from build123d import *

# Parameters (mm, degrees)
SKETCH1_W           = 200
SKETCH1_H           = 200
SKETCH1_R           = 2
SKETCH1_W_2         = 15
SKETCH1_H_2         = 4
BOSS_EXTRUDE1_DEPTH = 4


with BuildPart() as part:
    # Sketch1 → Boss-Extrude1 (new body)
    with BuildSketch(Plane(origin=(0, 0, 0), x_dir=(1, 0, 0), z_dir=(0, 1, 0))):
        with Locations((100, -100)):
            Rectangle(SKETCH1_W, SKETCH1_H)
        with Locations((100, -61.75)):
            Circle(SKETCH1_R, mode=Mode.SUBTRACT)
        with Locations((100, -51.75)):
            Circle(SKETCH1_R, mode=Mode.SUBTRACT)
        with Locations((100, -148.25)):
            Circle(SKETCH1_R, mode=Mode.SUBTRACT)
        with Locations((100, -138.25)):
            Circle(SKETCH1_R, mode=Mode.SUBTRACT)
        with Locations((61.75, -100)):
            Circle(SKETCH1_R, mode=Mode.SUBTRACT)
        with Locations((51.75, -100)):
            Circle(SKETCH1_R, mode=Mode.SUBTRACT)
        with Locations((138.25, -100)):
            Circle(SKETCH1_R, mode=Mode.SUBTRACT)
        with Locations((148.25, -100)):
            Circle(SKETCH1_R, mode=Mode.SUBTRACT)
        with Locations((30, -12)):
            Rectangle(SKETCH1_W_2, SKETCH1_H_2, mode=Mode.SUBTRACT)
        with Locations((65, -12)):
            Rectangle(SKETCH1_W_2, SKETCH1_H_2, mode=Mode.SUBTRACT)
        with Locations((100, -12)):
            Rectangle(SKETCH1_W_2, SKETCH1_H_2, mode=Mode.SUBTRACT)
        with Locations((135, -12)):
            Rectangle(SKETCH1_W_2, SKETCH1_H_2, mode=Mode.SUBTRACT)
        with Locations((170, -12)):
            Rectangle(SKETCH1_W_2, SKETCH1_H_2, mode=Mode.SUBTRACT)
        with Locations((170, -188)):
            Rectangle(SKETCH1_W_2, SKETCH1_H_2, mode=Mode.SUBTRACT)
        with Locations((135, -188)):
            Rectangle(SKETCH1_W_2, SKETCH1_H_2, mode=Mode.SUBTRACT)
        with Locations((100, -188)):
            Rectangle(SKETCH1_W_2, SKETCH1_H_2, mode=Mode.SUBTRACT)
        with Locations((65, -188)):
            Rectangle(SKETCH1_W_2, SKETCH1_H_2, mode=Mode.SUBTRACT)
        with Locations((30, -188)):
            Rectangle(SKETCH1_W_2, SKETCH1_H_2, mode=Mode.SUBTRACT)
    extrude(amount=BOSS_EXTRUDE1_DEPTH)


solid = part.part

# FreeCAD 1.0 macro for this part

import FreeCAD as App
import Part
import Sketcher

doc = App.newDocument("Part")
body = doc.addObject("PartDesign::Body", "Body")

sketch1 = doc.addObject("Sketcher::SketchObject", "Sketch")
body.addObject(sketch1)
sketch1.AttachmentSupport = (doc.XZ_Plane, [""])
sketch1.MapMode = "FlatFace"
sketch1.addGeometry(Part.LineSegment(App.Vector(0, 0, 0), App.Vector(0, 200, 0)), False)
sketch1.addGeometry(Part.LineSegment(App.Vector(0, 200, 0), App.Vector(200, 200, 0)), False)
sketch1.addGeometry(Part.LineSegment(App.Vector(200, 200, 0), App.Vector(200, 0, 0)), False)
sketch1.addGeometry(Part.LineSegment(App.Vector(200, 0, 0), App.Vector(0, 0, 0)), False)
sketch1.addGeometry(Part.LineSegment(App.Vector(37.5, 190, 0), App.Vector(22.5, 190, 0)), False)
sketch1.addGeometry(Part.LineSegment(App.Vector(22.5, 190, 0), App.Vector(22.5, 186, 0)), False)
sketch1.addGeometry(Part.LineSegment(App.Vector(22.5, 186, 0), App.Vector(37.5, 186, 0)), False)
sketch1.addGeometry(Part.LineSegment(App.Vector(37.5, 186, 0), App.Vector(37.5, 190, 0)), False)
sketch1.addGeometry(Part.LineSegment(App.Vector(72.5, 190, 0), App.Vector(57.5, 190, 0)), False)
sketch1.addGeometry(Part.LineSegment(App.Vector(57.5, 190, 0), App.Vector(57.5, 186, 0)), False)
sketch1.addGeometry(Part.LineSegment(App.Vector(57.5, 186, 0), App.Vector(72.5, 186, 0)), False)
sketch1.addGeometry(Part.LineSegment(App.Vector(72.5, 186, 0), App.Vector(72.5, 190, 0)), False)
sketch1.addGeometry(Part.LineSegment(App.Vector(107.5, 190, 0), App.Vector(92.5, 190, 0)), False)
sketch1.addGeometry(Part.LineSegment(App.Vector(92.5, 190, 0), App.Vector(92.5, 186, 0)), False)
sketch1.addGeometry(Part.LineSegment(App.Vector(92.5, 186, 0), App.Vector(107.5, 186, 0)), False)
sketch1.addGeometry(Part.LineSegment(App.Vector(107.5, 186, 0), App.Vector(107.5, 190, 0)), False)
sketch1.addGeometry(Part.LineSegment(App.Vector(142.5, 190, 0), App.Vector(127.5, 190, 0)), False)
sketch1.addGeometry(Part.LineSegment(App.Vector(127.5, 190, 0), App.Vector(127.5, 186, 0)), False)
sketch1.addGeometry(Part.LineSegment(App.Vector(127.5, 186, 0), App.Vector(142.5, 186, 0)), False)
sketch1.addGeometry(Part.LineSegment(App.Vector(142.5, 186, 0), App.Vector(142.5, 190, 0)), False)
sketch1.addGeometry(Part.Circle(App.Vector(100, 148.2, 0), App.Vector(0, 0, 1), 2), False)
sketch1.addGeometry(Part.LineSegment(App.Vector(177.5, 190, 0), App.Vector(162.5, 190, 0)), False)
sketch1.addGeometry(Part.LineSegment(App.Vector(162.5, 190, 0), App.Vector(162.5, 186, 0)), False)
sketch1.addGeometry(Part.LineSegment(App.Vector(162.5, 186, 0), App.Vector(177.5, 186, 0)), False)
sketch1.addGeometry(Part.LineSegment(App.Vector(177.5, 186, 0), App.Vector(177.5, 190, 0)), False)
sketch1.addGeometry(Part.Circle(App.Vector(100, 138.2, 0), App.Vector(0, 0, 1), 2), False)
sketch1.addGeometry(Part.Circle(App.Vector(51.8, 100, 0), App.Vector(0, 0, 1), 2), False)
sketch1.addGeometry(Part.Circle(App.Vector(61.8, 100, 0), App.Vector(0, 0, 1), 2), False)
sketch1.addGeometry(Part.LineSegment(App.Vector(37.5, 14, 0), App.Vector(22.5, 14, 0)), False)
sketch1.addGeometry(Part.LineSegment(App.Vector(22.5, 14, 0), App.Vector(22.5, 10, 0)), False)
sketch1.addGeometry(Part.LineSegment(App.Vector(22.5, 10, 0), App.Vector(37.5, 10, 0)), False)
sketch1.addGeometry(Part.LineSegment(App.Vector(37.5, 10, 0), App.Vector(37.5, 14, 0)), False)
sketch1.addGeometry(Part.LineSegment(App.Vector(72.5, 14, 0), App.Vector(57.5, 14, 0)), False)
sketch1.addGeometry(Part.LineSegment(App.Vector(57.5, 14, 0), App.Vector(57.5, 10, 0)), False)
sketch1.addGeometry(Part.LineSegment(App.Vector(57.5, 10, 0), App.Vector(72.5, 10, 0)), False)
sketch1.addGeometry(Part.LineSegment(App.Vector(72.5, 10, 0), App.Vector(72.5, 14, 0)), False)
sketch1.addGeometry(Part.Circle(App.Vector(138.2, 100, 0), App.Vector(0, 0, 1), 2), False)
sketch1.addGeometry(Part.Circle(App.Vector(100, 61.8, 0), App.Vector(0, 0, 1), 2), False)
sketch1.addGeometry(Part.Circle(App.Vector(148.2, 100, 0), App.Vector(0, 0, 1), 2), False)
sketch1.addGeometry(Part.Circle(App.Vector(100, 51.8, 0), App.Vector(0, 0, 1), 2), False)
sketch1.addGeometry(Part.LineSegment(App.Vector(107.5, 14, 0), App.Vector(92.5, 14, 0)), False)
sketch1.addGeometry(Part.LineSegment(App.Vector(92.5, 14, 0), App.Vector(92.5, 10, 0)), False)
sketch1.addGeometry(Part.LineSegment(App.Vector(92.5, 10, 0), App.Vector(107.5, 10, 0)), False)
sketch1.addGeometry(Part.LineSegment(App.Vector(107.5, 10, 0), App.Vector(107.5, 14, 0)), False)
sketch1.addGeometry(Part.LineSegment(App.Vector(142.5, 14, 0), App.Vector(127.5, 14, 0)), False)
sketch1.addGeometry(Part.LineSegment(App.Vector(127.5, 14, 0), App.Vector(127.5, 10, 0)), False)
sketch1.addGeometry(Part.LineSegment(App.Vector(127.5, 10, 0), App.Vector(142.5, 10, 0)), False)
sketch1.addGeometry(Part.LineSegment(App.Vector(142.5, 10, 0), App.Vector(142.5, 14, 0)), False)
sketch1.addGeometry(Part.LineSegment(App.Vector(177.5, 14, 0), App.Vector(162.5, 14, 0)), False)
sketch1.addGeometry(Part.LineSegment(App.Vector(162.5, 14, 0), App.Vector(162.5, 10, 0)), False)
sketch1.addGeometry(Part.LineSegment(App.Vector(162.5, 10, 0), App.Vector(177.5, 10, 0)), False)
sketch1.addGeometry(Part.LineSegment(App.Vector(177.5, 10, 0), App.Vector(177.5, 14, 0)), False)
sketch1.addConstraint(Sketcher.Constraint("Coincident", 0, 2, 1, 1))
sketch1.addConstraint(Sketcher.Constraint("Coincident", 1, 2, 2, 1))
sketch1.addConstraint(Sketcher.Constraint("Coincident", 2, 2, 3, 1))
sketch1.addConstraint(Sketcher.Constraint("Coincident", 3, 2, 0, 1))
sketch1.addConstraint(Sketcher.Constraint("Coincident", 4, 2, 5, 1))
sketch1.addConstraint(Sketcher.Constraint("Coincident", 5, 2, 6, 1))
sketch1.addConstraint(Sketcher.Constraint("Coincident", 6, 2, 7, 1))
sketch1.addConstraint(Sketcher.Constraint("Coincident", 7, 2, 4, 1))
sketch1.addConstraint(Sketcher.Constraint("Coincident", 8, 2, 9, 1))
sketch1.addConstraint(Sketcher.Constraint("Coincident", 9, 2, 10, 1))
sketch1.addConstraint(Sketcher.Constraint("Coincident", 10, 2, 11, 1))
sketch1.addConstraint(Sketcher.Constraint("Coincident", 11, 2, 8, 1))
sketch1.addConstraint(Sketcher.Constraint("Coincident", 12, 2, 13, 1))
sketch1.addConstraint(Sketcher.Constraint("Coincident", 13, 2, 14, 1))
sketch1.addConstraint(Sketcher.Constraint("Coincident", 14, 2, 15, 1))
sketch1.addConstraint(Sketcher.Constraint("Coincident", 15, 2, 12, 1))
sketch1.addConstraint(Sketcher.Constraint("Coincident", 16, 2, 17, 1))
sketch1.addConstraint(Sketcher.Constraint("Coincident", 17, 2, 18, 1))
sketch1.addConstraint(Sketcher.Constraint("Coincident", 18, 2, 19, 1))
sketch1.addConstraint(Sketcher.Constraint("Coincident", 19, 2, 16, 1))
sketch1.addConstraint(Sketcher.Constraint("Coincident", 21, 2, 22, 1))
sketch1.addConstraint(Sketcher.Constraint("Coincident", 22, 2, 23, 1))
sketch1.addConstraint(Sketcher.Constraint("Coincident", 23, 2, 24, 1))
sketch1.addConstraint(Sketcher.Constraint("Coincident", 24, 2, 21, 1))
sketch1.addConstraint(Sketcher.Constraint("Coincident", 28, 2, 29, 1))
sketch1.addConstraint(Sketcher.Constraint("Coincident", 29, 2, 30, 1))
sketch1.addConstraint(Sketcher.Constraint("Coincident", 30, 2, 31, 1))
sketch1.addConstraint(Sketcher.Constraint("Coincident", 31, 2, 28, 1))
sketch1.addConstraint(Sketcher.Constraint("Coincident", 32, 2, 33, 1))
sketch1.addConstraint(Sketcher.Constraint("Coincident", 33, 2, 34, 1))
sketch1.addConstraint(Sketcher.Constraint("Coincident", 34, 2, 35, 1))
sketch1.addConstraint(Sketcher.Constraint("Coincident", 35, 2, 32, 1))
sketch1.addConstraint(Sketcher.Constraint("Coincident", 40, 2, 41, 1))
sketch1.addConstraint(Sketcher.Constraint("Coincident", 41, 2, 42, 1))
sketch1.addConstraint(Sketcher.Constraint("Coincident", 42, 2, 43, 1))
sketch1.addConstraint(Sketcher.Constraint("Coincident", 43, 2, 40, 1))
sketch1.addConstraint(Sketcher.Constraint("Coincident", 44, 2, 45, 1))
sketch1.addConstraint(Sketcher.Constraint("Coincident", 45, 2, 46, 1))
sketch1.addConstraint(Sketcher.Constraint("Coincident", 46, 2, 47, 1))
sketch1.addConstraint(Sketcher.Constraint("Coincident", 47, 2, 44, 1))
sketch1.addConstraint(Sketcher.Constraint("Coincident", 48, 2, 49, 1))
sketch1.addConstraint(Sketcher.Constraint("Coincident", 49, 2, 50, 1))
sketch1.addConstraint(Sketcher.Constraint("Coincident", 50, 2, 51, 1))
sketch1.addConstraint(Sketcher.Constraint("Coincident", 51, 2, 48, 1))
sketch1.addConstraint(Sketcher.Constraint("Vertical", 0))
sketch1.addConstraint(Sketcher.Constraint("Horizontal", 1))
sketch1.addConstraint(Sketcher.Constraint("Vertical", 2))
sketch1.addConstraint(Sketcher.Constraint("Horizontal", 3))
sketch1.addConstraint(Sketcher.Constraint("Horizontal", 4))
sketch1.addConstraint(Sketcher.Constraint("Vertical", 5))
sketch1.addConstraint(Sketcher.Constraint("Horizontal", 6))
sketch1.addConstraint(Sketcher.Constraint("Vertical", 7))
sketch1.addConstraint(Sketcher.Constraint("Horizontal", 8))
sketch1.addConstraint(Sketcher.Constraint("Vertical", 9))
sketch1.addConstraint(Sketcher.Constraint("Horizontal", 10))
sketch1.addConstraint(Sketcher.Constraint("Vertical", 11))
sketch1.addConstraint(Sketcher.Constraint("Horizontal", 12))
sketch1.addConstraint(Sketcher.Constraint("Vertical", 13))
sketch1.addConstraint(Sketcher.Constraint("Horizontal", 14))
sketch1.addConstraint(Sketcher.Constraint("Vertical", 15))
sketch1.addConstraint(Sketcher.Constraint("Horizontal", 16))
sketch1.addConstraint(Sketcher.Constraint("Vertical", 17))
sketch1.addConstraint(Sketcher.Constraint("Horizontal", 18))
sketch1.addConstraint(Sketcher.Constraint("Vertical", 19))
sketch1.addConstraint(Sketcher.Constraint("Horizontal", 21))
sketch1.addConstraint(Sketcher.Constraint("Vertical", 22))
sketch1.addConstraint(Sketcher.Constraint("Horizontal", 23))
sketch1.addConstraint(Sketcher.Constraint("Vertical", 24))
sketch1.addConstraint(Sketcher.Constraint("Horizontal", 28))
sketch1.addConstraint(Sketcher.Constraint("Vertical", 29))
sketch1.addConstraint(Sketcher.Constraint("Horizontal", 30))
sketch1.addConstraint(Sketcher.Constraint("Vertical", 31))
sketch1.addConstraint(Sketcher.Constraint("Horizontal", 32))
sketch1.addConstraint(Sketcher.Constraint("Vertical", 33))
sketch1.addConstraint(Sketcher.Constraint("Horizontal", 34))
sketch1.addConstraint(Sketcher.Constraint("Vertical", 35))
sketch1.addConstraint(Sketcher.Constraint("Horizontal", 40))
sketch1.addConstraint(Sketcher.Constraint("Vertical", 41))
sketch1.addConstraint(Sketcher.Constraint("Horizontal", 42))
sketch1.addConstraint(Sketcher.Constraint("Vertical", 43))
sketch1.addConstraint(Sketcher.Constraint("Horizontal", 44))
sketch1.addConstraint(Sketcher.Constraint("Vertical", 45))
sketch1.addConstraint(Sketcher.Constraint("Horizontal", 46))
sketch1.addConstraint(Sketcher.Constraint("Vertical", 47))
sketch1.addConstraint(Sketcher.Constraint("Horizontal", 48))
sketch1.addConstraint(Sketcher.Constraint("Vertical", 49))
sketch1.addConstraint(Sketcher.Constraint("Horizontal", 50))
sketch1.addConstraint(Sketcher.Constraint("Vertical", 51))
sketch1.addConstraint(Sketcher.Constraint("Coincident", 3, 2, -1, 1))
sketch1.addConstraint(Sketcher.Constraint("Equal", 20, 25))
sketch1.addConstraint(Sketcher.Constraint("Equal", 25, 26))
sketch1.addConstraint(Sketcher.Constraint("Equal", 26, 27))
sketch1.addConstraint(Sketcher.Constraint("Equal", 27, 36))
sketch1.addConstraint(Sketcher.Constraint("Equal", 36, 37))
sketch1.addConstraint(Sketcher.Constraint("Equal", 37, 38))
sketch1.addConstraint(Sketcher.Constraint("Equal", 38, 39))
sketch1.addConstraint(Sketcher.Constraint("Horizontal", 26, 3, 27, 3))
sketch1.addConstraint(Sketcher.Constraint("Horizontal", 27, 3, 36, 3))
sketch1.addConstraint(Sketcher.Constraint("Horizontal", 36, 3, 38, 3))
sketch1.addConstraint(Sketcher.Constraint("Horizontal", 7, 2, 8, 2))
sketch1.addConstraint(Sketcher.Constraint("Horizontal", 6, 2, 9, 2))
sketch1.addConstraint(Sketcher.Constraint("Horizontal", 11, 2, 12, 2))
sketch1.addConstraint(Sketcher.Constraint("Horizontal", 10, 2, 13, 2))
sketch1.addConstraint(Sketcher.Constraint("Horizontal", 15, 2, 16, 2))
sketch1.addConstraint(Sketcher.Constraint("Horizontal", 14, 2, 17, 2))
sketch1.addConstraint(Sketcher.Constraint("Horizontal", 19, 2, 21, 2))
sketch1.addConstraint(Sketcher.Constraint("Horizontal", 18, 2, 22, 2))
sketch1.addConstraint(Sketcher.Constraint("Horizontal", 31, 2, 32, 2))
sketch1.addConstraint(Sketcher.Constraint("Horizontal", 30, 2, 33, 2))
sketch1.addConstraint(Sketcher.Constraint("Horizontal", 35, 2, 40, 2))
sketch1.addConstraint(Sketcher.Constraint("Horizontal", 34, 2, 41, 2))
sketch1.addConstraint(Sketcher.Constraint("Horizontal", 43, 2, 44, 2))
sketch1.addConstraint(Sketcher.Constraint("Horizontal", 42, 2, 45, 2))
sketch1.addConstraint(Sketcher.Constraint("Horizontal", 47, 2, 48, 2))
sketch1.addConstraint(Sketcher.Constraint("Horizontal", 46, 2, 49, 2))
sketch1.addConstraint(Sketcher.Constraint("Vertical", 20, 3, 25, 3))
sketch1.addConstraint(Sketcher.Constraint("Vertical", 25, 3, 37, 3))
sketch1.addConstraint(Sketcher.Constraint("Vertical", 37, 3, 39, 3))
sketch1.addConstraint(Sketcher.Constraint("Vertical", 5, 2, 28, 2))
sketch1.addConstraint(Sketcher.Constraint("Vertical", 7, 2, 30, 2))
sketch1.addConstraint(Sketcher.Constraint("Vertical", 9, 2, 32, 2))
sketch1.addConstraint(Sketcher.Constraint("Vertical", 11, 2, 34, 2))
sketch1.addConstraint(Sketcher.Constraint("Vertical", 13, 2, 40, 2))
sketch1.addConstraint(Sketcher.Constraint("Vertical", 15, 2, 42, 2))
sketch1.addConstraint(Sketcher.Constraint("Vertical", 17, 2, 44, 2))
sketch1.addConstraint(Sketcher.Constraint("Vertical", 19, 2, 46, 2))
sketch1.addConstraint(Sketcher.Constraint("Vertical", 22, 2, 48, 2))
sketch1.addConstraint(Sketcher.Constraint("Vertical", 24, 2, 50, 2))
sketch1.addConstraint(Sketcher.Constraint("Equal", 6, 8))
sketch1.addConstraint(Sketcher.Constraint("Equal", 10, 12))
sketch1.addConstraint(Sketcher.Constraint("Equal", 14, 16))
sketch1.addConstraint(Sketcher.Constraint("Equal", 18, 21))
sketch1.addConstraint(Sketcher.Constraint("Equal", 3, 0))
sketch1.addConstraint(Sketcher.Constraint("Equal", 24, 29))
sketch1.addConstraint(Sketcher.Constraint("Diameter", 20, 4.0))
sketch1.addConstraint(Sketcher.Constraint("DistanceX", 1, 1, 1, 2, 200.0))
sketch1.addConstraint(Sketcher.Constraint("DistanceX", 4, 2, 4, 1, 15.0))
sketch1.addConstraint(Sketcher.Constraint("DistanceY", 5, 2, 5, 1, 4.0))
sketch1.addConstraint(Sketcher.Constraint("DistanceX", -1, 1, 20, 3, 100.0))
sketch1.addConstraint(Sketcher.Constraint("DistanceY", -1, 1, 26, 3, 100.0))
sketch1.addConstraint(Sketcher.Constraint("DistanceY", -1, 1, 4, 2, 190.0))
sketch1.addConstraint(Sketcher.Constraint("DistanceY", -1, 1, 28, 2, 14.0))
sketch1.addConstraint(Sketcher.Constraint("DistanceY", 25, 3, 20, 3, 10.0))
sketch1.addConstraint(Sketcher.Constraint("DistanceX", 26, 3, 27, 3, 10.0))
sketch1.addConstraint(Sketcher.Constraint("DistanceX", 36, 3, 38, 3, 10.0))
sketch1.addConstraint(Sketcher.Constraint("DistanceY", 39, 3, 37, 3, 10.0))
sketch1.addConstraint(Sketcher.Constraint("DistanceX", 7, 2, 8, 2, 20.0))
sketch1.addConstraint(Sketcher.Constraint("DistanceX", 11, 2, 12, 2, 20.0))
sketch1.addConstraint(Sketcher.Constraint("DistanceX", 15, 2, 16, 2, 20.0))
sketch1.addConstraint(Sketcher.Constraint("DistanceX", 19, 2, 21, 2, 20.0))
sketch1.addConstraint(Sketcher.Constraint("DistanceX", -1, 1, 4, 2, 22.5))
sketch1.addConstraint(Sketcher.Constraint("DistanceX", 27, 3, 36, 3, 76.5))
sketch1.addConstraint(Sketcher.Constraint("DistanceY", 37, 3, 25, 3, 76.5))
sketch1.addConstraint(Sketcher.Constraint("DistanceY", -1, 1, 20, 3, 148.25))
sketch1.addConstraint(Sketcher.Constraint("DistanceX", -1, 1, 26, 3, 51.75))
pad1 = doc.addObject("PartDesign::Pad", "Pad")
body.addObject(pad1)
pad1.Profile = sketch1
pad1.Length = 4
pad1.Reversed = True

doc.recompute()
